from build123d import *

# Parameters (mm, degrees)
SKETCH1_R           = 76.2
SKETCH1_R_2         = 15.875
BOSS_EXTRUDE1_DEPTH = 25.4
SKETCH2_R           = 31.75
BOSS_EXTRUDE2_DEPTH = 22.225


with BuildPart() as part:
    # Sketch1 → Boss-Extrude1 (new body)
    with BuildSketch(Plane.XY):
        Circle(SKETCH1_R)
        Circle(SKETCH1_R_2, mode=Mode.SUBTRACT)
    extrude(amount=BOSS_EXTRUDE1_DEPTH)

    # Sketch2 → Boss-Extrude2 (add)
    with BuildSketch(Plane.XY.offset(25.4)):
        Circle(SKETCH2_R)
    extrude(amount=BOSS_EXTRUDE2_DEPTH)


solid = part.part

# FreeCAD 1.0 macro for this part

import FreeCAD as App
import Part
import Sketcher

V = App.Vector
Q = App.Units.Quantity

doc = App.newDocument("Part")
body = doc.addObject("PartDesign::Body", "Body")

# Sketch on XY plane
sketch1 = doc.addObject("Sketcher::SketchObject", "Sketch")
body.addObject(sketch1)
sketch1.AttachmentSupport = (doc.XY_Plane, [""])
sketch1.MapMode = "FlatFace"
sketch1.addGeometry([
    Part.Circle(V(0, 0, 0), V(0, 0, 1), 76),
    Part.Circle(V(0, 0, 0), V(0, 0, 1), 16),
], False)
sketch1.addConstraint([
    Sketcher.Constraint("Coincident", 0, 3, -1, 1),
    Sketcher.Constraint("Coincident", 1, 3, -1, 1),
    Sketcher.Constraint("Diameter", 0, Q("6 in")),
    Sketcher.Constraint("Diameter", 1, Q("1.25 in")),
])
pad1 = doc.addObject("PartDesign::Pad", "Pad")
body.addObject(pad1)
pad1.Profile = sketch1
pad1.Length = Q("1 in")

# Sketch on XY plane
sketch2 = doc.addObject("Sketcher::SketchObject", "Sketch001")
body.addObject(sketch2)
sketch2.AttachmentSupport = (doc.XY_Plane, [""])
sketch2.MapMode = "FlatFace"
sketch2.AttachmentOffset = App.Placement(V(0, 0, 1 * 25.4), App.Rotation())
sketch2.addGeometry(Part.Circle(V(0, 0, 0), V(0, 0, 1), 32), False)
sketch2.addConstraint([
    Sketcher.Constraint("Coincident", 0, 3, -1, 1),
    Sketcher.Constraint("Diameter", 0, Q("2.5 in")),
])
pad2 = doc.addObject("PartDesign::Pad", "Pad001")
body.addObject(pad2)
pad2.Profile = sketch2
pad2.Length = Q("0.875 in")

doc.recompute()
